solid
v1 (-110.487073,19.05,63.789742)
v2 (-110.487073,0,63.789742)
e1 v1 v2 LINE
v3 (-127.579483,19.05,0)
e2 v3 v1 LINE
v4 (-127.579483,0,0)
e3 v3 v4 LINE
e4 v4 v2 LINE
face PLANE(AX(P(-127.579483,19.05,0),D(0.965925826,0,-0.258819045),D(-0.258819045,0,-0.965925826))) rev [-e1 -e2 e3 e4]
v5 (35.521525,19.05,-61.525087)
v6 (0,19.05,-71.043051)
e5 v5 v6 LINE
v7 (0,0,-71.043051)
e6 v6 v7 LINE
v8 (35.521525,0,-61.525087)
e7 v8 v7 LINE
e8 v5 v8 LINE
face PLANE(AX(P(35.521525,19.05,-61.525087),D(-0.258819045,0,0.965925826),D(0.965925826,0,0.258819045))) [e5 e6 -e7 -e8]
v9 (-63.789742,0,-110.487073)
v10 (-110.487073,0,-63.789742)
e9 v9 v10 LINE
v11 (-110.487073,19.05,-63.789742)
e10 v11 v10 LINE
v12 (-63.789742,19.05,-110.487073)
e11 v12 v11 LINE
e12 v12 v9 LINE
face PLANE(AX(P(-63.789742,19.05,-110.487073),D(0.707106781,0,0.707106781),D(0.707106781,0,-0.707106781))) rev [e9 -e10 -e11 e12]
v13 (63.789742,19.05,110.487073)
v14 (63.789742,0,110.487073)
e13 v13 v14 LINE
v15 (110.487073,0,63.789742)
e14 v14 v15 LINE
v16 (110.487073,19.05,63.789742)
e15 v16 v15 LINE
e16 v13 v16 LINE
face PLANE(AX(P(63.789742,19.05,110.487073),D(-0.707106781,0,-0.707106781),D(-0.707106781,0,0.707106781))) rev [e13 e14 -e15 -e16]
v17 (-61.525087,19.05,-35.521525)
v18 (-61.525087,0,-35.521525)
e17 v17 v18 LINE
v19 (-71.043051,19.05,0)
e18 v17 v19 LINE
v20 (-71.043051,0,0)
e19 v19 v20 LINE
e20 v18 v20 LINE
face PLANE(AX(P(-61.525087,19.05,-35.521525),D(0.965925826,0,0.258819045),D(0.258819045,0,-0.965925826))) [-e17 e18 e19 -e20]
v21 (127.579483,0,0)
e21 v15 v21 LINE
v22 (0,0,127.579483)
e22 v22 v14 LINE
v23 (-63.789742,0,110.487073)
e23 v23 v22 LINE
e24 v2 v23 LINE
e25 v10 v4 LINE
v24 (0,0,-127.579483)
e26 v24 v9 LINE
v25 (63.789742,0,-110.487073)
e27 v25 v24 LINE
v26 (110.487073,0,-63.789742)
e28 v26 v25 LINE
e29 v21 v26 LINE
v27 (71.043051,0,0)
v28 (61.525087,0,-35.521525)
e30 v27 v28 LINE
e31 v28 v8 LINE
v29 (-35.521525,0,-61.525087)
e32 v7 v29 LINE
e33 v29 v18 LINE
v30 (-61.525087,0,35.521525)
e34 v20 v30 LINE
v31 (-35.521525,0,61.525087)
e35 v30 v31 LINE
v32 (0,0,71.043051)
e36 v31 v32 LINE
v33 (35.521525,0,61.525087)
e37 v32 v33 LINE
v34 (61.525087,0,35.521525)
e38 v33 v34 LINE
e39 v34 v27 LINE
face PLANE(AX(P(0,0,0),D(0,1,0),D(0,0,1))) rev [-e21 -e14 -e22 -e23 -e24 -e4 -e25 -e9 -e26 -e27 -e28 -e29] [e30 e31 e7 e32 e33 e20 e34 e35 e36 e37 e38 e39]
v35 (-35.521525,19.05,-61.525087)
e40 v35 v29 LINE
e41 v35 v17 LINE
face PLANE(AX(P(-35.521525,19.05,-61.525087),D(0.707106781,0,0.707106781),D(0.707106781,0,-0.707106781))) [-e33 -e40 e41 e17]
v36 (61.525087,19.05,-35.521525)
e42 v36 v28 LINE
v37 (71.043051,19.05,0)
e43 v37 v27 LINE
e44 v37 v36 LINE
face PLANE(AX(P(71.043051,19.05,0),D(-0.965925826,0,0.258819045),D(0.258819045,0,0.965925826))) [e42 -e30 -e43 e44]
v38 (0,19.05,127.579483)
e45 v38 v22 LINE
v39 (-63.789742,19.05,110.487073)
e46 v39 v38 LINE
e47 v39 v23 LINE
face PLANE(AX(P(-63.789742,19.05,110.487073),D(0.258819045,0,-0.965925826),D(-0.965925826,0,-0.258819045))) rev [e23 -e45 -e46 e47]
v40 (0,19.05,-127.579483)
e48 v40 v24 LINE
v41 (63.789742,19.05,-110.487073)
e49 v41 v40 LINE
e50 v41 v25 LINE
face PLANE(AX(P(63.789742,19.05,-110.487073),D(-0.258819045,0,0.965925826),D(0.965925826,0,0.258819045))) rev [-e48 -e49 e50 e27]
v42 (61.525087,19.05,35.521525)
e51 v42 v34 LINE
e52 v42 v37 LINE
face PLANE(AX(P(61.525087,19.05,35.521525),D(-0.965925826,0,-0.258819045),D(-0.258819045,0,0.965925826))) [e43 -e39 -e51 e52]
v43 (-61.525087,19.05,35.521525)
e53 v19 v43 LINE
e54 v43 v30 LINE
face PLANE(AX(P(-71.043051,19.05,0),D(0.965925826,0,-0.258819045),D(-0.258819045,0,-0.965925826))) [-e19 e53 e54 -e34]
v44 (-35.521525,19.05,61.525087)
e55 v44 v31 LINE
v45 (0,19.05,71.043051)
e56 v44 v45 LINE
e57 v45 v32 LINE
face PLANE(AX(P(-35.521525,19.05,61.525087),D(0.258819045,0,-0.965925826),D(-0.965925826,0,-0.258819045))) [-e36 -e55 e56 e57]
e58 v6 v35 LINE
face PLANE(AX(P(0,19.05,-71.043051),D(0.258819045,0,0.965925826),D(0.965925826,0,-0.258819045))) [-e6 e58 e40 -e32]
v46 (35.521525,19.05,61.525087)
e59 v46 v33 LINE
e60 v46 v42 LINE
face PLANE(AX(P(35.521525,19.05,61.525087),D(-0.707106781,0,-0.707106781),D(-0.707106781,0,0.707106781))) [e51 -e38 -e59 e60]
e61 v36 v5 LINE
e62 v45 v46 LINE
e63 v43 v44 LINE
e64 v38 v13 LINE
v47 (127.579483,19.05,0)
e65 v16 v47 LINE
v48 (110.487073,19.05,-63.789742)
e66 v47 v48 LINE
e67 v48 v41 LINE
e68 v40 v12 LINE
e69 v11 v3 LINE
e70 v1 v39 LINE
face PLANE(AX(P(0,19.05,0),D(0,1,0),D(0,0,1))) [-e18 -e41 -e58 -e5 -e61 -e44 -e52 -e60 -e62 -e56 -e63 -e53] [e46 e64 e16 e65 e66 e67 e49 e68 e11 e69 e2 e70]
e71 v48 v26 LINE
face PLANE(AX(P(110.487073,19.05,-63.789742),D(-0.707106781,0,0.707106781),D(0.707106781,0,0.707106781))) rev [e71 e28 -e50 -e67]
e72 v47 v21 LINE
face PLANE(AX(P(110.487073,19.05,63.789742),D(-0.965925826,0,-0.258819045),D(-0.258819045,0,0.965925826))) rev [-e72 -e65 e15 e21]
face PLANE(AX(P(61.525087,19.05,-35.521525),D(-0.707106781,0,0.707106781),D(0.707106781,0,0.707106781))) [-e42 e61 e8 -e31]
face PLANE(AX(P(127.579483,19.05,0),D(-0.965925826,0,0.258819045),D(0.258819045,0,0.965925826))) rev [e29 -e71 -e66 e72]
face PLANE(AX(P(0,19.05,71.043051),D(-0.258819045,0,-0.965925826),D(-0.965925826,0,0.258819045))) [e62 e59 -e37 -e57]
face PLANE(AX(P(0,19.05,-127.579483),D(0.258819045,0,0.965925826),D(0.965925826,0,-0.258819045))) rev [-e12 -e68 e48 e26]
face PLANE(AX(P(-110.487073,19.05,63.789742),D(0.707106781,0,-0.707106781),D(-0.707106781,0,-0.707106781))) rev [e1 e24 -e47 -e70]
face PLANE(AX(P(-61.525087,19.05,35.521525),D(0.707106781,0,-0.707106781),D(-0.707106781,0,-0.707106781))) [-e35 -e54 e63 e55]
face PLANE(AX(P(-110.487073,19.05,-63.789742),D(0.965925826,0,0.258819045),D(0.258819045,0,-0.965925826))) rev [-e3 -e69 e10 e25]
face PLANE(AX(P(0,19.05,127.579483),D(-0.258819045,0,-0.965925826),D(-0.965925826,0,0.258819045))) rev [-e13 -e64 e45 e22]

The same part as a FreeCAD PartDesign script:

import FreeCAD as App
import Part
import Sketcher
from FreeCAD import Vector
Q = App.Units.Quantity


def add_polygon(sketch, points):
    """Adds a closed chain of lines whose ends are joined by coincident constraints."""
    first, n = sketch.GeometryCount, len(points)
    for a, b in zip(points, points[1:] + points[:1]):
        sketch.addGeometry(Part.LineSegment(App.Vector(*a, 0), App.Vector(*b, 0)), False)
    for i in range(n):
        sketch.addConstraint(Sketcher.Constraint("Coincident", first + i, 2, first + (i + 1) % n, 1))

doc = App.newDocument("Part")
body = doc.addObject("PartDesign::Body", "Body")

sketch1 = doc.addObject("Sketcher::SketchObject", "Sketch")
body.addObject(sketch1)
sketch1.AttachmentSupport = (doc.XZ_Plane, [""])
sketch1.MapMode = "FlatFace"
add_polygon(sketch1, [(-128, 0), (-110, 64), (-64, 110), (0, 128), (64, 110), (110, 64), (128, 0), (110, -64), (64, -110), (0, -128), (-64, -110), (-110, -64)])
add_polygon(sketch1, [(-62, 36), (-71, 0), (-62, -36), (-36, -62), (0, -71), (36, -62), (62, -36), (71, 0), (62, 36), (36, 62), (0, 71), (-36, 62)])
sketch1.addConstraint(Sketcher.Constraint("Symmetric", 0, 2, 6, 2, -1, 1))
sketch1.addConstraint(Sketcher.Constraint("Symmetric", 1, 2, 7, 2, -1, 1))
sketch1.addConstraint(Sketcher.Constraint("Symmetric", 2, 2, 8, 2, -1, 1))
sketch1.addConstraint(Sketcher.Constraint("Symmetric", 3, 2, 9, 2, -1, 1))
sketch1.addConstraint(Sketcher.Constraint("Symmetric", 4, 2, 10, 2, -1, 1))
sketch1.addConstraint(Sketcher.Constraint("Symmetric", 5, 2, 11, 2, -1, 1))
sketch1.addConstraint(Sketcher.Constraint("Symmetric", 12, 2, 18, 2, -1, 1))
sketch1.addConstraint(Sketcher.Constraint("Symmetric", 13, 2, 19, 2, -1, 1))
sketch1.addConstraint(Sketcher.Constraint("Symmetric", 14, 2, 20, 2, -1, 1))
sketch1.addConstraint(Sketcher.Constraint("Symmetric", 15, 2, 21, 2, -1, 1))
sketch1.addConstraint(Sketcher.Constraint("Symmetric", 16, 2, 22, 2, -1, 1))
sketch1.addConstraint(Sketcher.Constraint("Symmetric", 17, 2, 23, 2, -1, 1))
sketch1.addConstraint(Sketcher.Constraint("Symmetric", 1, 2, 3, 2, -2))
sketch1.addConstraint(Sketcher.Constraint("Symmetric", 0, 2, 4, 2, -2))
sketch1.addConstraint(Sketcher.Constraint("Symmetric", 14, 2, 16, 2, -2))
sketch1.addConstraint(Sketcher.Constraint("Symmetric", 13, 2, 17, 2, -2))
sketch1.addConstraint(Sketcher.Constraint("PointOnObject", 2, 2, -2))
sketch1.addConstraint(Sketcher.Constraint("PointOnObject", 5, 2, -1))
sketch1.addConstraint(Sketcher.Constraint("PointOnObject", 12, 2, -1))
sketch1.addConstraint(Sketcher.Constraint("PointOnObject", 15, 2, -2))
sketch1.addConstraint(Sketcher.Constraint("Perpendicular", 0, 3))
sketch1.addConstraint(Sketcher.Constraint("Perpendicular", 1, 4))
sketch1.addConstraint(Sketcher.Constraint("Perpendicular", 9, 12))
sketch1.addConstraint(Sketcher.Constraint("Parallel", 10, 14))
sketch1.addConstraint(Sketcher.Constraint("Perpendicular", 12, 15))
sketch1.addConstraint(Sketcher.Constraint("Equal", 0, 1))
sketch1.addConstraint(Sketcher.Constraint("Equal", 1, 2))
sketch1.addConstraint(Sketcher.Constraint("Equal", 13, 14))
sketch1.addConstraint(Sketcher.Constraint("Equal", 14, 15))
sketch1.addConstraint(Sketcher.Constraint("Angle", 0, Q("75 deg")))
sketch1.addConstraint(Sketcher.Constraint("Distance", 0, Q("2.6 in")))
sketch1.addConstraint(Sketcher.Constraint("Distance", 12, Q("36.774589 mm")))
pad1 = doc.addObject("PartDesign::Pad", "Pad")
body.addObject(pad1)
pad1.Profile = sketch1
pad1.Length = Q("0.75 in")
pad1.Reversed = True

doc.recompute()
